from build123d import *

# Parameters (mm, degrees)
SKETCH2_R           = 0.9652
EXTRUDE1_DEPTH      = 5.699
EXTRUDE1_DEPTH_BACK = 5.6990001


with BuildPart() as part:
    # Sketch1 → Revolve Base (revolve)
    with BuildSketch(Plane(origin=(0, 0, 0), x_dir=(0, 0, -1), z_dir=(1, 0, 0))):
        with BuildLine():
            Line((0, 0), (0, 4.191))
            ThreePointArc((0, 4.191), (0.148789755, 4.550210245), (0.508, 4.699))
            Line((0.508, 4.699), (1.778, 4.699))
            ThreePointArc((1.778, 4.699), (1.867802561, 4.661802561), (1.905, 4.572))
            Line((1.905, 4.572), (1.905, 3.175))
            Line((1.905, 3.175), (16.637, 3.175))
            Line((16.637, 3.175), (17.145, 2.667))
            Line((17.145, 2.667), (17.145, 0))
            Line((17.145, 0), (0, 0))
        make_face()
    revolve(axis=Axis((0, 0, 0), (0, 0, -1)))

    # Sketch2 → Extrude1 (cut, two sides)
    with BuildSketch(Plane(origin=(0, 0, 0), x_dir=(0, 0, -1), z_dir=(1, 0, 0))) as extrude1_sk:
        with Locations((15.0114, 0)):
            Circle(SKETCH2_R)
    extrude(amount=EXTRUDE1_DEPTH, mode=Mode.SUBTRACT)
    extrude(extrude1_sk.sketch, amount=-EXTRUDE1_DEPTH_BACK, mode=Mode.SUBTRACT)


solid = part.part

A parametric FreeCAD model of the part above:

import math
import FreeCAD as App
import Part
import Sketcher
Q = App.Units.Quantity

doc = App.newDocument("Part")
body = doc.addObject("PartDesign::Body", "Body")

# Sketch on YZ plane
sketch1 = body.newObject("Sketcher::SketchObject", "Sketch")
sketch1.AttachmentSupport = (doc.getObject("YZ_Plane"), [""])
sketch1.MapMode = "FlatFace"
sketch1.addGeometry(Part.LineSegment(App.Vector(4.19, 0, 0), App.Vector(0, 0, 0)), False)
sketch1.addGeometry(Part.LineSegment(App.Vector(0, 0, 0), App.Vector(0, -17.14, 0)), False)
sketch1.addGeometry(Part.LineSegment(App.Vector(0, -17.14, 0), App.Vector(2.67, -17.14, 0)), False)
sketch1.addGeometry(Part.LineSegment(App.Vector(2.67, -17.14, 0), App.Vector(3.17, -16.64, 0)), False)
sketch1.addGeometry(Part.LineSegment(App.Vector(3.17, -16.64, 0), App.Vector(3.17, -1.91, 0)), False)
sketch1.addGeometry(Part.LineSegment(App.Vector(3.17, -1.91, 0), App.Vector(4.57, -1.91, 0)), False)
sketch1.addGeometry(Part.ArcOfCircle(Part.Circle(App.Vector(4.57, -1.78, 0), App.Vector(0, 0, 1), 0.13), math.radians(-90), math.radians(0)), False)
sketch1.addGeometry(Part.LineSegment(App.Vector(4.7, -1.78, 0), App.Vector(4.7, -0.51, 0)), False)
sketch1.addGeometry(Part.ArcOfCircle(Part.Circle(App.Vector(4.19, -0.51, 0), App.Vector(0, 0, 1), 0.51), math.radians(0), math.radians(90)), False)
sketch1.addConstraint(Sketcher.Constraint("Coincident", 0, 2, 1, 1))
sketch1.addConstraint(Sketcher.Constraint("Coincident", 1, 2, 2, 1))
sketch1.addConstraint(Sketcher.Constraint("Coincident", 2, 2, 3, 1))
sketch1.addConstraint(Sketcher.Constraint("Coincident", 3, 2, 4, 1))
sketch1.addConstraint(Sketcher.Constraint("Coincident", 4, 2, 5, 1))
sketch1.addConstraint(Sketcher.Constraint("Tangent", 5, 2, 6, 1))
sketch1.addConstraint(Sketcher.Constraint("Tangent", 6, 2, 7, 1))
sketch1.addConstraint(Sketcher.Constraint("Tangent", 7, 2, 8, 1))
sketch1.addConstraint(Sketcher.Constraint("Tangent", 8, 2, 0, 1))
sketch1.addConstraint(Sketcher.Constraint("Horizontal", 0))
sketch1.addConstraint(Sketcher.Constraint("Vertical", 1))
sketch1.addConstraint(Sketcher.Constraint("Horizontal", 2))
sketch1.addConstraint(Sketcher.Constraint("Vertical", 4))
sketch1.addConstraint(Sketcher.Constraint("Horizontal", 5))
sketch1.addConstraint(Sketcher.Constraint("Vertical", 7))
sketch1.addConstraint(Sketcher.Constraint("Coincident", 0, 2, -1, 1))
sketch1.addConstraint(Sketcher.Constraint("Radius", 8, Q("0.02 in")))
sketch1.addConstraint(Sketcher.Constraint("Angle", 3, Q("45 deg")))
sketch1.addConstraint(Sketcher.Constraint("Radius", 6, Q("0.005 in")))
sketch1.addConstraint(Sketcher.Constraint("DistanceY", 4, 1, 4, 2, Q("0.58 in")))
sketch1.addConstraint(Sketcher.Constraint("DistanceY", 7, 1, 7, 2, Q("0.05 in")))
sketch1.addConstraint(Sketcher.Constraint("DistanceY", 2, 2, 4, 2, Q("0.6 in")))
sketch1.addConstraint(Sketcher.Constraint("DistanceX", 0, 2, 0, 1, Q("0.165 in")))
sketch1.addConstraint(Sketcher.Constraint("DistanceX", 2, 1, 2, 2, Q("0.105 in")))
revolution = body.newObject("PartDesign::Revolution", "Revolution")
revolution.Profile = sketch1
revolution.ReferenceAxis = (sketch1, ["V_Axis"])
revolution.Angle = 360

# Sketch on YZ plane
sketch2 = body.newObject("Sketcher::SketchObject", "Sketch001")
sketch2.AttachmentSupport = (doc.getObject("YZ_Plane"), [""])
sketch2.MapMode = "FlatFace"
sketch2.addGeometry(Part.Circle(App.Vector(0, -15, 0), App.Vector(0, 0, 1), 1), False)
sketch2.addConstraint(Sketcher.Constraint("PointOnObject", 0, 3, -2))
sketch2.addConstraint(Sketcher.Constraint("Diameter", 0, Q("0.076 in")))
sketch2.addConstraint(Sketcher.Constraint("DistanceY", 0, 3, -1, 1, Q("0.591 in")))
pocket1 = body.newObject("PartDesign::Pocket", "Pocket")
pocket1.Profile = sketch2
pocket1.Type = "ThroughAll"
pocket1.Midplane = True

doc.recompute()
